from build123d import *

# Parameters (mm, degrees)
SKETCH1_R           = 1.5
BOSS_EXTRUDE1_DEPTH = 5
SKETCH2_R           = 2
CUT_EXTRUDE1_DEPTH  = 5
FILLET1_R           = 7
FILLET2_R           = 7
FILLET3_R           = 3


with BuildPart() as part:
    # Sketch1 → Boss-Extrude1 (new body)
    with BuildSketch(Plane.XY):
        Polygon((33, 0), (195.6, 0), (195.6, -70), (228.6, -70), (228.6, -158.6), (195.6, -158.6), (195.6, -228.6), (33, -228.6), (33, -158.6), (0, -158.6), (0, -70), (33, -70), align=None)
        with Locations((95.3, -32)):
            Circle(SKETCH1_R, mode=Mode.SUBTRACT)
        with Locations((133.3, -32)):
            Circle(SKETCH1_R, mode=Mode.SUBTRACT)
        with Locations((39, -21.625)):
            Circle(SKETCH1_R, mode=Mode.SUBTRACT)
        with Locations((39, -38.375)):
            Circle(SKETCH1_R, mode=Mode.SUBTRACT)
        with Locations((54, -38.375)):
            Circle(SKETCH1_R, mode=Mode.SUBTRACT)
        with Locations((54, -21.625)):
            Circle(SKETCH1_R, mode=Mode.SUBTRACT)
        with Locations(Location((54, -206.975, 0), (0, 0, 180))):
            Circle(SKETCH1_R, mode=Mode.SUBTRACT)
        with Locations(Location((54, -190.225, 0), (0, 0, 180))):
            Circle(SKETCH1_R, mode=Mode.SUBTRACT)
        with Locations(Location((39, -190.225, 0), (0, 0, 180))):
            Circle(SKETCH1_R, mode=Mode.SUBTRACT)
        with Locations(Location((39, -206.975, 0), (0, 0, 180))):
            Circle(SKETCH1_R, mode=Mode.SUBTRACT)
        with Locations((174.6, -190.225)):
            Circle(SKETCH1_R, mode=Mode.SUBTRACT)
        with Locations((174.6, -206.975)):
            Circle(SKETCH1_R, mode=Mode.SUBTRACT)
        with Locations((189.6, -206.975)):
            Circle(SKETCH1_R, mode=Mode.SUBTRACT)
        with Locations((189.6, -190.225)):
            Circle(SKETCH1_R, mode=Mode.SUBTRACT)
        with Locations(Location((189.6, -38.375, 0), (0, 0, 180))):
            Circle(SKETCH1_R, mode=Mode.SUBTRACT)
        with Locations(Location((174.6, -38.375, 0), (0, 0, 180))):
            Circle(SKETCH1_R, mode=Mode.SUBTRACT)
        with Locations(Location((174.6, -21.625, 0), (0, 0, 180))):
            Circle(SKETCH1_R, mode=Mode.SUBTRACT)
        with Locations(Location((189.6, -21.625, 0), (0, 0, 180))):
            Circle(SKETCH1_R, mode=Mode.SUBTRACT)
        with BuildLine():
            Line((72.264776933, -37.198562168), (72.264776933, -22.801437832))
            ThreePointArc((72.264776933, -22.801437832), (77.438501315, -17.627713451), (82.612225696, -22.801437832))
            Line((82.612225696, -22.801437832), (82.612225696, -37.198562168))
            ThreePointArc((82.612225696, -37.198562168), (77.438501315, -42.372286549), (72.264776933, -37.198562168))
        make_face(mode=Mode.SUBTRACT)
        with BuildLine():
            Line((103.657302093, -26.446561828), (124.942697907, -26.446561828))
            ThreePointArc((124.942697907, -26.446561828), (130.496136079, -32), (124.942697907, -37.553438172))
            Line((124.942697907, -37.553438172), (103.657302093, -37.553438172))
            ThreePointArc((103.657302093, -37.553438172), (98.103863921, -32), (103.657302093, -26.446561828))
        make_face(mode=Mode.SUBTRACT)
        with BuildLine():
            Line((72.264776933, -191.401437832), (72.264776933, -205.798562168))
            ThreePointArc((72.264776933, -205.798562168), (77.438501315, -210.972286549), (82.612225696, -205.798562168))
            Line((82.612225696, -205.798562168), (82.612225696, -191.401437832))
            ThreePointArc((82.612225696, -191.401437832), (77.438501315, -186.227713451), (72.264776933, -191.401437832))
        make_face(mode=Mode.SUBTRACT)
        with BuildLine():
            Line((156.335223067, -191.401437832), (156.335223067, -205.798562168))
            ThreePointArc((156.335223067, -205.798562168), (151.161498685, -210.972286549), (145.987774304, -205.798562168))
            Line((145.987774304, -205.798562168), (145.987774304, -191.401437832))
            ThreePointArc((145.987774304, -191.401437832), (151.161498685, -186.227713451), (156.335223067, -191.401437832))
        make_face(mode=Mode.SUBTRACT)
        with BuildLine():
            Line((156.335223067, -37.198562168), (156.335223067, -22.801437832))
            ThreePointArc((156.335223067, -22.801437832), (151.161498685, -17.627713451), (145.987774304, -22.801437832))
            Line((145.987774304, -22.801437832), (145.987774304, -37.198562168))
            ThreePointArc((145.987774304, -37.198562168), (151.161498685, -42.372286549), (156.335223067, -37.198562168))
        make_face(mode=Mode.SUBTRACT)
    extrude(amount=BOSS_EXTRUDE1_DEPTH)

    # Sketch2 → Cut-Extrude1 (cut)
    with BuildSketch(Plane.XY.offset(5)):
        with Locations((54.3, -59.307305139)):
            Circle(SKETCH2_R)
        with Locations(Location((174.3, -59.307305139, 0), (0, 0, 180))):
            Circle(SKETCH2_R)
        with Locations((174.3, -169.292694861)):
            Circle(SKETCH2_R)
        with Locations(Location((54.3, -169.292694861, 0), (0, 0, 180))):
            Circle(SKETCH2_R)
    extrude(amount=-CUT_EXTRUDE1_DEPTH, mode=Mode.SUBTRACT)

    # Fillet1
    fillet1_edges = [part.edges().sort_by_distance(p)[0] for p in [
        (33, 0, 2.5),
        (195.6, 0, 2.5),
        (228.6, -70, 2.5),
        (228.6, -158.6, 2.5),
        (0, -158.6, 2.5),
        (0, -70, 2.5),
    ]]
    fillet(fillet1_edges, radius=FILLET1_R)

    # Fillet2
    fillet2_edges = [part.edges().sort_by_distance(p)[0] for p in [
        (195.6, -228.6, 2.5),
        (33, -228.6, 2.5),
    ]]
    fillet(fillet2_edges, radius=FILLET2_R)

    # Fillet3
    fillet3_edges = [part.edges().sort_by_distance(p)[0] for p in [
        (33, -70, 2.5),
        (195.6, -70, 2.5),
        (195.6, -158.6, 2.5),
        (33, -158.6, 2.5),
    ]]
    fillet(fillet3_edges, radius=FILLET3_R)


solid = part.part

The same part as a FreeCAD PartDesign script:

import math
import FreeCAD as App
import Part
import Sketcher

V = App.Vector
Q = App.Units.Quantity


def edges_at(feature, points):
    """Names of the edges that pass closest to the given points."""
    edges = feature.Shape.Edges
    near = lambda p: min(range(len(edges)), key=lambda i: edges[i].distToShape(Part.Vertex(*p))[0])
    return sorted({f"Edge{near(p) + 1}" for p in points})

doc = App.newDocument("Part")
params = doc.addObject("Spreadsheet::Sheet", "Params")
for row, (alias, value) in enumerate([
    ("sketch1_diameter", "3 mm"),
    ("sketch1_width", "33 mm"),
    ("sketch1_height", "70 mm"),
    ("sketch1_width2", "162.6 mm"),
    ("sketch1_height2", "88.6 mm"),
    ("pad1_length", "5 mm"),
    ("sketch2_diameter", "4 mm"),
    ("pocket1_length", "5 mm"),
    ("fillet_radius", "7 mm"),
    ("fillet2_radius", "7 mm"),
    ("fillet3_radius", "3 mm"),
], start=1):
    params.set(f"A{row}", alias)
    params.set(f"B{row}", "=" + value)
    params.setAlias(f"B{row}", alias)

body = doc.addObject("PartDesign::Body", "Body")

# Sketch on XY plane
sketch1 = doc.addObject("Sketcher::SketchObject", "Sketch")
body.addObject(sketch1)
sketch1.AttachmentSupport = (doc.XY_Plane, [""])
sketch1.MapMode = "FlatFace"
sketch1.addGeometry(Part.LineSegment(V(195.6, 0, 0), V(33, 0, 0)), False)
sketch1.addGeometry(Part.LineSegment(V(33, 0, 0), V(33, -70, 0)), False)
sketch1.addGeometry(Part.LineSegment(V(33, -70, 0), V(0, -70, 0)), False)
sketch1.addGeometry(Part.LineSegment(V(0, -70, 0), V(0, -158.6, 0)), False)
sketch1.addGeometry(Part.LineSegment(V(0, -158.6, 0), V(33, -158.6, 0)), False)
sketch1.addGeometry(Part.LineSegment(V(33, -158.6, 0), V(33, -228.6, 0)), False)
sketch1.addGeometry(Part.LineSegment(V(33, -228.6, 0), V(195.6, -228.6, 0)), False)
sketch1.addGeometry(Part.LineSegment(V(195.6, -228.6, 0), V(195.6, -158.6, 0)), False)
sketch1.addGeometry(Part.LineSegment(V(195.6, -158.6, 0), V(228.6, -158.6, 0)), False)
sketch1.addGeometry(Part.LineSegment(V(228.6, -158.6, 0), V(228.6, -70, 0)), False)
sketch1.addGeometry(Part.LineSegment(V(228.6, -70, 0), V(195.6, -70, 0)), False)
sketch1.addGeometry(Part.LineSegment(V(195.6, -70, 0), V(195.6, 0, 0)), False)
sketch1.addGeometry(Part.Circle(V(189.6, -207, 0), V(0, 0, 1), 1.5), False)
sketch1.addGeometry(Part.Circle(V(174.6, -207, 0), V(0, 0, 1), 1.5), False)
sketch1.addGeometry(Part.Circle(V(189.6, -190.2, 0), V(0, 0, 1), 1.5), False)
sketch1.addGeometry(Part.Circle(V(174.6, -190.2, 0), V(0, 0, 1), 1.5), False)
sketch1.addGeometry(Part.LineSegment(V(156.3, -191.4, 0), V(156.3, -205.8, 0)), False)
sketch1.addGeometry(Part.ArcOfCircle(Part.Circle(V(151.2, -205.8, 0), V(0, 0, 1), 5.2), math.radians(-180), math.radians(0)), False)
sketch1.addGeometry(Part.LineSegment(V(146, -205.8, 0), V(146, -191.4, 0)), False)
sketch1.addGeometry(Part.ArcOfCircle(Part.Circle(V(151.2, -191.4, 0), V(0, 0, 1), 5.2), math.radians(0), math.radians(180)), False)
sketch1.addGeometry(Part.ArcOfCircle(Part.Circle(V(77.4, -191.4, 0), V(0, 0, 1), 5.2), math.radians(0), math.radians(180)), False)
sketch1.addGeometry(Part.LineSegment(V(82.6, -191.4, 0), V(82.6, -205.8, 0)), False)
sketch1.addGeometry(Part.ArcOfCircle(Part.Circle(V(77.4, -205.8, 0), V(0, 0, 1), 5.2), math.radians(-180), math.radians(0)), False)
sketch1.addGeometry(Part.LineSegment(V(72.3, -205.8, 0), V(72.3, -191.4, 0)), False)
sketch1.addGeometry(Part.Circle(V(54, -207, 0), V(0, 0, 1), 1.5), False)
sketch1.addGeometry(Part.Circle(V(39, -207, 0), V(0, 0, 1), 1.5), False)
sketch1.addGeometry(Part.Circle(V(54, -190.2, 0), V(0, 0, 1), 1.5), False)
sketch1.addGeometry(Part.Circle(V(39, -190.2, 0), V(0, 0, 1), 1.5), False)
sketch1.addGeometry(Part.Circle(V(189.6, -38.4, 0), V(0, 0, 1), 1.5), False)
sketch1.addGeometry(Part.Circle(V(174.6, -38.4, 0), V(0, 0, 1), 1.5), False)
sketch1.addGeometry(Part.Circle(V(189.6, -21.6, 0), V(0, 0, 1), 1.5), False)
sketch1.addGeometry(Part.Circle(V(174.6, -21.6, 0), V(0, 0, 1), 1.5), False)
sketch1.addGeometry(Part.ArcOfCircle(Part.Circle(V(151.2, -37.2, 0), V(0, 0, 1), 5.2), math.radians(180), math.radians(360)), False)
sketch1.addGeometry(Part.LineSegment(V(146, -37.2, 0), V(146, -22.8, 0)), False)
sketch1.addGeometry(Part.ArcOfCircle(Part.Circle(V(151.2, -22.8, 0), V(0, 0, 1), 5.2), math.radians(0), math.radians(180)), False)
sketch1.addGeometry(Part.LineSegment(V(156.3, -22.8, 0), V(156.3, -37.2, 0)), False)
sketch1.addGeometry(Part.Circle(V(133.3, -32, 0), V(0, 0, 1), 1.5), False)
sketch1.addGeometry(Part.LineSegment(V(103.7, -26.4, 0), V(124.9, -26.4, 0)), False)
sketch1.addGeometry(Part.ArcOfCircle(Part.Circle(V(124.9, -32, 0), V(0, 0, 1), 5.6), math.radians(-90), math.radians(90)), False)
sketch1.addGeometry(Part.LineSegment(V(124.9, -37.6, 0), V(103.7, -37.6, 0)), False)
sketch1.addGeometry(Part.ArcOfCircle(Part.Circle(V(103.7, -32, 0), V(0, 0, 1), 5.6), math.radians(90), math.radians(270)), False)
sketch1.addGeometry(Part.Circle(V(95.3, -32, 0), V(0, 0, 1), 1.5), False)
sketch1.addGeometry(Part.LineSegment(V(72.3, -37.2, 0), V(72.3, -22.8, 0)), False)
sketch1.addGeometry(Part.ArcOfCircle(Part.Circle(V(77.4, -22.8, 0), V(0, 0, 1), 5.2), math.radians(0), math.radians(180)), False)
sketch1.addGeometry(Part.LineSegment(V(82.6, -22.8, 0), V(82.6, -37.2, 0)), False)
sketch1.addGeometry(Part.ArcOfCircle(Part.Circle(V(77.4, -37.2, 0), V(0, 0, 1), 5.2), math.radians(180), math.radians(360)), False)
sketch1.addGeometry(Part.Circle(V(54, -38.4, 0), V(0, 0, 1), 1.5), False)
sketch1.addGeometry(Part.Circle(V(39, -38.4, 0), V(0, 0, 1), 1.5), False)
sketch1.addGeometry(Part.Circle(V(54, -21.6, 0), V(0, 0, 1), 1.5), False)
sketch1.addGeometry(Part.Circle(V(39, -21.6, 0), V(0, 0, 1), 1.5), False)
sketch1.addConstraint(Sketcher.Constraint("Coincident", 0, 2, 1, 1))
sketch1.addConstraint(Sketcher.Constraint("Coincident", 1, 2, 2, 1))
sketch1.addConstraint(Sketcher.Constraint("Coincident", 2, 2, 3, 1))
sketch1.addConstraint(Sketcher.Constraint("Coincident", 3, 2, 4, 1))
sketch1.addConstraint(Sketcher.Constraint("Coincident", 4, 2, 5, 1))
sketch1.addConstraint(Sketcher.Constraint("Coincident", 5, 2, 6, 1))
sketch1.addConstraint(Sketcher.Constraint("Coincident", 6, 2, 7, 1))
sketch1.addConstraint(Sketcher.Constraint("Coincident", 7, 2, 8, 1))
sketch1.addConstraint(Sketcher.Constraint("Coincident", 8, 2, 9, 1))
sketch1.addConstraint(Sketcher.Constraint("Coincident", 9, 2, 10, 1))
sketch1.addConstraint(Sketcher.Constraint("Coincident", 10, 2, 11, 1))
sketch1.addConstraint(Sketcher.Constraint("Coincident", 11, 2, 0, 1))
sketch1.addConstraint(Sketcher.Constraint("Tangent", 16, 2, 17, 2))
sketch1.addConstraint(Sketcher.Constraint("Tangent", 17, 1, 18, 1))
sketch1.addConstraint(Sketcher.Constraint("Tangent", 18, 2, 19, 2))
sketch1.addConstraint(Sketcher.Constraint("Tangent", 19, 1, 16, 1))
sketch1.addConstraint(Sketcher.Constraint("Tangent", 20, 1, 21, 1))
sketch1.addConstraint(Sketcher.Constraint("Tangent", 21, 2, 22, 2))
sketch1.addConstraint(Sketcher.Constraint("Tangent", 22, 1, 23, 1))
sketch1.addConstraint(Sketcher.Constraint("Tangent", 23, 2, 20, 2))
sketch1.addConstraint(Sketcher.Constraint("Tangent", 32, 1, 33, 1))
sketch1.addConstraint(Sketcher.Constraint("Tangent", 33, 2, 34, 2))
sketch1.addConstraint(Sketcher.Constraint("Tangent", 34, 1, 35, 1))
sketch1.addConstraint(Sketcher.Constraint("Tangent", 35, 2, 32, 2))
sketch1.addConstraint(Sketcher.Constraint("Tangent", 37, 2, 38, 2))
sketch1.addConstraint(Sketcher.Constraint("Tangent", 38, 1, 39, 1))
sketch1.addConstraint(Sketcher.Constraint("Tangent", 39, 2, 40, 2))
sketch1.addConstraint(Sketcher.Constraint("Tangent", 40, 1, 37, 1))
sketch1.addConstraint(Sketcher.Constraint("Tangent", 42, 2, 43, 2))
sketch1.addConstraint(Sketcher.Constraint("Tangent", 43, 1, 44, 1))
sketch1.addConstraint(Sketcher.Constraint("Tangent", 44, 2, 45, 2))
sketch1.addConstraint(Sketcher.Constraint("Tangent", 45, 1, 42, 1))
sketch1.addConstraint(Sketcher.Constraint("Horizontal", 0))
sketch1.addConstraint(Sketcher.Constraint("Vertical", 1))
sketch1.addConstraint(Sketcher.Constraint("Horizontal", 2))
sketch1.addConstraint(Sketcher.Constraint("Vertical", 3))
sketch1.addConstraint(Sketcher.Constraint("Horizontal", 4))
sketch1.addConstraint(Sketcher.Constraint("Vertical", 5))
sketch1.addConstraint(Sketcher.Constraint("Horizontal", 6))
sketch1.addConstraint(Sketcher.Constraint("Vertical", 7))
sketch1.addConstraint(Sketcher.Constraint("Horizontal", 8))
sketch1.addConstraint(Sketcher.Constraint("Vertical", 9))
sketch1.addConstraint(Sketcher.Constraint("Horizontal", 10))
sketch1.addConstraint(Sketcher.Constraint("Vertical", 11))
sketch1.addConstraint(Sketcher.Constraint("Vertical", 16))
sketch1.addConstraint(Sketcher.Constraint("Vertical", 18))
sketch1.addConstraint(Sketcher.Constraint("Vertical", 21))
sketch1.addConstraint(Sketcher.Constraint("Vertical", 23))
sketch1.addConstraint(Sketcher.Constraint("Vertical", 33))
sketch1.addConstraint(Sketcher.Constraint("Vertical", 35))
sketch1.addConstraint(Sketcher.Constraint("Horizontal", 37))
sketch1.addConstraint(Sketcher.Constraint("Horizontal", 39))
sketch1.addConstraint(Sketcher.Constraint("Vertical", 42))
sketch1.addConstraint(Sketcher.Constraint("Vertical", 44))
sketch1.addConstraint(Sketcher.Constraint("Equal", 12, 13))
sketch1.addConstraint(Sketcher.Constraint("Equal", 13, 14))
sketch1.addConstraint(Sketcher.Constraint("Equal", 14, 15))
sketch1.addConstraint(Sketcher.Constraint("Equal", 19, 20))
sketch1.addConstraint(Sketcher.Constraint("Equal", 15, 24))
sketch1.addConstraint(Sketcher.Constraint("Equal", 24, 25))
sketch1.addConstraint(Sketcher.Constraint("Equal", 25, 26))
sketch1.addConstraint(Sketcher.Constraint("Equal", 26, 27))
sketch1.addConstraint(Sketcher.Constraint("Equal", 27, 28))
sketch1.addConstraint(Sketcher.Constraint("Equal", 28, 29))
sketch1.addConstraint(Sketcher.Constraint("Equal", 29, 30))
sketch1.addConstraint(Sketcher.Constraint("Equal", 30, 31))
sketch1.addConstraint(Sketcher.Constraint("Equal", 22, 32))
sketch1.addConstraint(Sketcher.Constraint("Equal", 31, 36))
sketch1.addConstraint(Sketcher.Constraint("Equal", 36, 41))
sketch1.addConstraint(Sketcher.Constraint("Equal", 34, 43))
sketch1.addConstraint(Sketcher.Constraint("Equal", 41, 46))
sketch1.addConstraint(Sketcher.Constraint("Equal", 46, 47))
sketch1.addConstraint(Sketcher.Constraint("Equal", 47, 48))
sketch1.addConstraint(Sketcher.Constraint("Equal", 48, 49))
sketch1.addConstraint(Sketcher.Constraint("PointOnObject", 0, 2, -1))
sketch1.addConstraint(Sketcher.Constraint("PointOnObject", 2, 2, -2))
sketch1.addConstraint(Sketcher.Constraint("Horizontal", 12, 3, 13, 3))
sketch1.addConstraint(Sketcher.Constraint("Horizontal", 14, 3, 15, 3))
sketch1.addConstraint(Sketcher.Constraint("Horizontal", 19, 3, 20, 3))
sketch1.addConstraint(Sketcher.Constraint("Horizontal", 17, 3, 22, 3))
sketch1.addConstraint(Sketcher.Constraint("Horizontal", 13, 3, 24, 3))
sketch1.addConstraint(Sketcher.Constraint("Horizontal", 24, 3, 25, 3))
sketch1.addConstraint(Sketcher.Constraint("Horizontal", 15, 3, 26, 3))
sketch1.addConstraint(Sketcher.Constraint("Horizontal", 26, 3, 27, 3))
sketch1.addConstraint(Sketcher.Constraint("Horizontal", 28, 3, 29, 3))
sketch1.addConstraint(Sketcher.Constraint("Horizontal", 30, 3, 31, 3))
sketch1.addConstraint(Sketcher.Constraint("Horizontal", 36, 3, 38, 3))
sketch1.addConstraint(Sketcher.Constraint("Horizontal", 40, 3, 41, 3))
sketch1.addConstraint(Sketcher.Constraint("Horizontal", 34, 3, 43, 3))
sketch1.addConstraint(Sketcher.Constraint("Horizontal", 32, 3, 45, 3))
sketch1.addConstraint(Sketcher.Constraint("Horizontal", 29, 3, 46, 3))
sketch1.addConstraint(Sketcher.Constraint("Horizontal", 46, 3, 47, 3))
sketch1.addConstraint(Sketcher.Constraint("Horizontal", 31, 3, 48, 3))
sketch1.addConstraint(Sketcher.Constraint("Horizontal", 48, 3, 49, 3))
sketch1.addConstraint(Sketcher.Constraint("Horizontal", 4, 2, 7, 2))
sketch1.addConstraint(Sketcher.Constraint("Horizontal", 2, 2, 9, 2))
sketch1.addConstraint(Sketcher.Constraint("Vertical", 12, 3, 14, 3))
sketch1.addConstraint(Sketcher.Constraint("Vertical", 13, 3, 15, 3))
sketch1.addConstraint(Sketcher.Constraint("Vertical", 24, 3, 26, 3))
sketch1.addConstraint(Sketcher.Constraint("Vertical", 25, 3, 27, 3))
sketch1.addConstraint(Sketcher.Constraint("Vertical", 14, 3, 28, 3))
sketch1.addConstraint(Sketcher.Constraint("Vertical", 15, 3, 29, 3))
sketch1.addConstraint(Sketcher.Constraint("Vertical", 28, 3, 30, 3))
sketch1.addConstraint(Sketcher.Constraint("Vertical", 29, 3, 31, 3))
sketch1.addConstraint(Sketcher.Constraint("Vertical", 19, 3, 32, 3))
sketch1.addConstraint(Sketcher.Constraint("Vertical", 22, 3, 43, 3))
sketch1.addConstraint(Sketcher.Constraint("Vertical", 26, 3, 46, 3))
sketch1.addConstraint(Sketcher.Constraint("Vertical", 27, 3, 47, 3))
sketch1.addConstraint(Sketcher.Constraint("Vertical", 46, 3, 48, 3))
sketch1.addConstraint(Sketcher.Constraint("Vertical", 47, 3, 49, 3))
sketch1.addConstraint(Sketcher.Constraint("Vertical", 1, 2, 4, 2))
sketch1.addConstraint(Sketcher.Constraint("Vertical", 7, 2, 10, 2))
sketch1.addConstraint(Sketcher.Constraint("Equal", 4, 8))
sketch1.addConstraint(Sketcher.Constraint("Equal", 1, 5))
sketch1.addConstraint(Sketcher.Constraint("Equal", 23, 33))
sketch1.addConstraint(Sketcher.Constraint("Diameter", 12, Q("3 mm")))
sketch1.addConstraint(Sketcher.Constraint("DistanceX", 2, 2, 2, 1, Q("33 mm")))
sketch1.addConstraint(Sketcher.Constraint("DistanceY", 1, 2, 1, 1, Q("70 mm")))
sketch1.addConstraint(Sketcher.Constraint("DistanceX", 0, 2, 0, 1, Q("162.6 mm")))
sketch1.addConstraint(Sketcher.Constraint("DistanceY", 3, 2, 3, 1, Q("88.6 mm")))
sketch1.addConstraint(Sketcher.Constraint("DistanceX", -1, 1, 24, 3, Q("54 mm")))
sketch1.addConstraint(Sketcher.Constraint("DistanceX", -1, 1, 25, 3, Q("39 mm")))
sketch1.addConstraint(Sketcher.Constraint("DistanceY", 36, 3, -1, 1, Q("32 mm")))
sketch1.addConstraint(Sketcher.Constraint("DistanceX", 13, 3, 12, 3, Q("15 mm")))
sketch1.addConstraint(Sketcher.Constraint("DistanceX", 41, 3, 36, 3, Q("38 mm")))
sketch1.addConstraint(Sketcher.Constraint("DistanceX", 12, 3, 6, 2, Q("6 mm")))
sketch1.addConstraint(Sketcher.Constraint("DistanceX", -1, 1, 36, 3, Q("133.3 mm")))
sketch1.addConstraint(Sketcher.Constraint("DistanceY", 12, 3, 28, 3, Q("168.6 mm")))
sketch1.addConstraint(Sketcher.Constraint("DistanceY", 14, 3, 30, 3, Q("168.6 mm")))
sketch1.addConstraint(Sketcher.Constraint("Radius", 38, Q("5.553438 mm")))
sketch1.addConstraint(Sketcher.Constraint("DistanceY", 12, 3, 14, 3, Q("16.75 mm")))
sketch1.addConstraint(Sketcher.Constraint("DistanceY", 12, 3, -1, 1, Q("206.975 mm")))
sketch1.addConstraint(Sketcher.Constraint("Radius", 17, Q("5.173724 mm")))
sketch1.addConstraint(Sketcher.Constraint("DistanceY", 32, 1, 37, 2, Q("10.752 mm")))
sketch1.addConstraint(Sketcher.Constraint("DistanceX", -1, 1, 17, 3, Q("151.161499 mm")))
sketch1.addConstraint(Sketcher.Constraint("DistanceX", -1, 1, 20, 3, Q("77.438501 mm")))
sketch1.addConstraint(Sketcher.Constraint("DistanceX", 38, 3, 32, 3, Q("26.218801 mm")))
sketch1.addConstraint(Sketcher.Constraint("DistanceX", 43, 3, 40, 3, Q("26.218801 mm")))
sketch1.addConstraint(Sketcher.Constraint("DistanceY", 16, 2, 16, 1, Q("14.397124 mm")))
sketch1.addConstraint(Sketcher.Constraint("DistanceY", 17, 3, -1, 1, Q("205.798562 mm")))
sketch1.setExpression("Constraints[115]", "Params.sketch1_diameter")
sketch1.setExpression("Constraints[116]", "Params.sketch1_width")
sketch1.setExpression("Constraints[117]", "Params.sketch1_height")
sketch1.setExpression("Constraints[118]", "Params.sketch1_width2")
sketch1.setExpression("Constraints[119]", "Params.sketch1_height2")
pad1 = doc.addObject("PartDesign::Pad", "Pad")
body.addObject(pad1)
pad1.Profile = sketch1
pad1.setExpression("Length", "Params.pad1_length")

# Sketch on XY plane
sketch2 = doc.addObject("Sketcher::SketchObject", "Sketch001")
body.addObject(sketch2)
sketch2.AttachmentSupport = (doc.XY_Plane, [""])
sketch2.MapMode = "FlatFace"
sketch2.AttachmentOffset = App.Placement(V(0, 0, 5), App.Rotation())
sketch2.addGeometry(Part.Circle(V(54.3, -59.3, 0), V(0, 0, 1), 2), False)
sketch2.addGeometry(Part.Circle(V(174.3, -59.3, 0), V(0, 0, 1), 2), False)
sketch2.addGeometry(Part.Circle(V(174.3, -169.3, 0), V(0, 0, 1), 2), False)
sketch2.addGeometry(Part.Circle(V(54.3, -169.3, 0), V(0, 0, 1), 2), False)
sketch2.addConstraint(Sketcher.Constraint("Equal", 0, 1))
sketch2.addConstraint(Sketcher.Constraint("Equal", 1, 2))
sketch2.addConstraint(Sketcher.Constraint("Equal", 2, 3))
sketch2.addConstraint(Sketcher.Constraint("Horizontal", 0, 3, 1, 3))
sketch2.addConstraint(Sketcher.Constraint("Horizontal", 2, 3, 3, 3))
sketch2.addConstraint(Sketcher.Constraint("Vertical", 1, 3, 2, 3))
sketch2.addConstraint(Sketcher.Constraint("Vertical", 0, 3, 3, 3))
sketch2.addConstraint(Sketcher.Constraint("Diameter", 0, Q("4 mm")))
sketch2.addConstraint(Sketcher.Constraint("DistanceX", 0, 3, 1, 3, Q("120 mm")))
sketch2.addConstraint(Sketcher.Constraint("DistanceX", -1, 1, 0, 3, Q("54.3 mm")))
sketch2.addConstraint(Sketcher.Constraint("DistanceY", 2, 3, 1, 3, Q("109.98539 mm")))
sketch2.addConstraint(Sketcher.Constraint("DistanceY", 0, 3, -1, 1, Q("59.307305 mm")))
sketch2.setExpression("Constraints[7]", "Params.sketch2_diameter")
pocket1 = doc.addObject("PartDesign::Pocket", "Pocket")
body.addObject(pocket1)
pocket1.Profile = sketch2
pocket1.setExpression("Length", "Params.pocket1_length")
doc.recompute()

fillet = doc.addObject("PartDesign::Fillet", "Fillet")
body.addObject(fillet)
fillet.Base = (pocket1, edges_at(pocket1, [
    (33, 0, 2.5),
    (195.6, 0, 2.5),
    (228.6, -70, 2.5),
    (228.6, -158.6, 2.5),
    (0, -158.6, 2.5),
    (0, -70, 2.5),
]))
fillet.setExpression("Radius", "Params.fillet_radius")
doc.recompute()

fillet2 = doc.addObject("PartDesign::Fillet", "Fillet001")
body.addObject(fillet2)
fillet2.Base = (fillet, edges_at(fillet, [(195.6, -228.6, 2.5), (33, -228.6, 2.5)]))
fillet2.setExpression("Radius", "Params.fillet2_radius")
doc.recompute()

fillet3 = doc.addObject("PartDesign::Fillet", "Fillet002")
body.addObject(fillet3)
fillet3.Base = (fillet2, edges_at(fillet2, [
    (33, -70, 2.5),
    (195.6, -70, 2.5),
    (195.6, -158.6, 2.5),
    (33, -158.6, 2.5),
]))
fillet3.setExpression("Radius", "Params.fillet3_radius")

doc.recompute()
